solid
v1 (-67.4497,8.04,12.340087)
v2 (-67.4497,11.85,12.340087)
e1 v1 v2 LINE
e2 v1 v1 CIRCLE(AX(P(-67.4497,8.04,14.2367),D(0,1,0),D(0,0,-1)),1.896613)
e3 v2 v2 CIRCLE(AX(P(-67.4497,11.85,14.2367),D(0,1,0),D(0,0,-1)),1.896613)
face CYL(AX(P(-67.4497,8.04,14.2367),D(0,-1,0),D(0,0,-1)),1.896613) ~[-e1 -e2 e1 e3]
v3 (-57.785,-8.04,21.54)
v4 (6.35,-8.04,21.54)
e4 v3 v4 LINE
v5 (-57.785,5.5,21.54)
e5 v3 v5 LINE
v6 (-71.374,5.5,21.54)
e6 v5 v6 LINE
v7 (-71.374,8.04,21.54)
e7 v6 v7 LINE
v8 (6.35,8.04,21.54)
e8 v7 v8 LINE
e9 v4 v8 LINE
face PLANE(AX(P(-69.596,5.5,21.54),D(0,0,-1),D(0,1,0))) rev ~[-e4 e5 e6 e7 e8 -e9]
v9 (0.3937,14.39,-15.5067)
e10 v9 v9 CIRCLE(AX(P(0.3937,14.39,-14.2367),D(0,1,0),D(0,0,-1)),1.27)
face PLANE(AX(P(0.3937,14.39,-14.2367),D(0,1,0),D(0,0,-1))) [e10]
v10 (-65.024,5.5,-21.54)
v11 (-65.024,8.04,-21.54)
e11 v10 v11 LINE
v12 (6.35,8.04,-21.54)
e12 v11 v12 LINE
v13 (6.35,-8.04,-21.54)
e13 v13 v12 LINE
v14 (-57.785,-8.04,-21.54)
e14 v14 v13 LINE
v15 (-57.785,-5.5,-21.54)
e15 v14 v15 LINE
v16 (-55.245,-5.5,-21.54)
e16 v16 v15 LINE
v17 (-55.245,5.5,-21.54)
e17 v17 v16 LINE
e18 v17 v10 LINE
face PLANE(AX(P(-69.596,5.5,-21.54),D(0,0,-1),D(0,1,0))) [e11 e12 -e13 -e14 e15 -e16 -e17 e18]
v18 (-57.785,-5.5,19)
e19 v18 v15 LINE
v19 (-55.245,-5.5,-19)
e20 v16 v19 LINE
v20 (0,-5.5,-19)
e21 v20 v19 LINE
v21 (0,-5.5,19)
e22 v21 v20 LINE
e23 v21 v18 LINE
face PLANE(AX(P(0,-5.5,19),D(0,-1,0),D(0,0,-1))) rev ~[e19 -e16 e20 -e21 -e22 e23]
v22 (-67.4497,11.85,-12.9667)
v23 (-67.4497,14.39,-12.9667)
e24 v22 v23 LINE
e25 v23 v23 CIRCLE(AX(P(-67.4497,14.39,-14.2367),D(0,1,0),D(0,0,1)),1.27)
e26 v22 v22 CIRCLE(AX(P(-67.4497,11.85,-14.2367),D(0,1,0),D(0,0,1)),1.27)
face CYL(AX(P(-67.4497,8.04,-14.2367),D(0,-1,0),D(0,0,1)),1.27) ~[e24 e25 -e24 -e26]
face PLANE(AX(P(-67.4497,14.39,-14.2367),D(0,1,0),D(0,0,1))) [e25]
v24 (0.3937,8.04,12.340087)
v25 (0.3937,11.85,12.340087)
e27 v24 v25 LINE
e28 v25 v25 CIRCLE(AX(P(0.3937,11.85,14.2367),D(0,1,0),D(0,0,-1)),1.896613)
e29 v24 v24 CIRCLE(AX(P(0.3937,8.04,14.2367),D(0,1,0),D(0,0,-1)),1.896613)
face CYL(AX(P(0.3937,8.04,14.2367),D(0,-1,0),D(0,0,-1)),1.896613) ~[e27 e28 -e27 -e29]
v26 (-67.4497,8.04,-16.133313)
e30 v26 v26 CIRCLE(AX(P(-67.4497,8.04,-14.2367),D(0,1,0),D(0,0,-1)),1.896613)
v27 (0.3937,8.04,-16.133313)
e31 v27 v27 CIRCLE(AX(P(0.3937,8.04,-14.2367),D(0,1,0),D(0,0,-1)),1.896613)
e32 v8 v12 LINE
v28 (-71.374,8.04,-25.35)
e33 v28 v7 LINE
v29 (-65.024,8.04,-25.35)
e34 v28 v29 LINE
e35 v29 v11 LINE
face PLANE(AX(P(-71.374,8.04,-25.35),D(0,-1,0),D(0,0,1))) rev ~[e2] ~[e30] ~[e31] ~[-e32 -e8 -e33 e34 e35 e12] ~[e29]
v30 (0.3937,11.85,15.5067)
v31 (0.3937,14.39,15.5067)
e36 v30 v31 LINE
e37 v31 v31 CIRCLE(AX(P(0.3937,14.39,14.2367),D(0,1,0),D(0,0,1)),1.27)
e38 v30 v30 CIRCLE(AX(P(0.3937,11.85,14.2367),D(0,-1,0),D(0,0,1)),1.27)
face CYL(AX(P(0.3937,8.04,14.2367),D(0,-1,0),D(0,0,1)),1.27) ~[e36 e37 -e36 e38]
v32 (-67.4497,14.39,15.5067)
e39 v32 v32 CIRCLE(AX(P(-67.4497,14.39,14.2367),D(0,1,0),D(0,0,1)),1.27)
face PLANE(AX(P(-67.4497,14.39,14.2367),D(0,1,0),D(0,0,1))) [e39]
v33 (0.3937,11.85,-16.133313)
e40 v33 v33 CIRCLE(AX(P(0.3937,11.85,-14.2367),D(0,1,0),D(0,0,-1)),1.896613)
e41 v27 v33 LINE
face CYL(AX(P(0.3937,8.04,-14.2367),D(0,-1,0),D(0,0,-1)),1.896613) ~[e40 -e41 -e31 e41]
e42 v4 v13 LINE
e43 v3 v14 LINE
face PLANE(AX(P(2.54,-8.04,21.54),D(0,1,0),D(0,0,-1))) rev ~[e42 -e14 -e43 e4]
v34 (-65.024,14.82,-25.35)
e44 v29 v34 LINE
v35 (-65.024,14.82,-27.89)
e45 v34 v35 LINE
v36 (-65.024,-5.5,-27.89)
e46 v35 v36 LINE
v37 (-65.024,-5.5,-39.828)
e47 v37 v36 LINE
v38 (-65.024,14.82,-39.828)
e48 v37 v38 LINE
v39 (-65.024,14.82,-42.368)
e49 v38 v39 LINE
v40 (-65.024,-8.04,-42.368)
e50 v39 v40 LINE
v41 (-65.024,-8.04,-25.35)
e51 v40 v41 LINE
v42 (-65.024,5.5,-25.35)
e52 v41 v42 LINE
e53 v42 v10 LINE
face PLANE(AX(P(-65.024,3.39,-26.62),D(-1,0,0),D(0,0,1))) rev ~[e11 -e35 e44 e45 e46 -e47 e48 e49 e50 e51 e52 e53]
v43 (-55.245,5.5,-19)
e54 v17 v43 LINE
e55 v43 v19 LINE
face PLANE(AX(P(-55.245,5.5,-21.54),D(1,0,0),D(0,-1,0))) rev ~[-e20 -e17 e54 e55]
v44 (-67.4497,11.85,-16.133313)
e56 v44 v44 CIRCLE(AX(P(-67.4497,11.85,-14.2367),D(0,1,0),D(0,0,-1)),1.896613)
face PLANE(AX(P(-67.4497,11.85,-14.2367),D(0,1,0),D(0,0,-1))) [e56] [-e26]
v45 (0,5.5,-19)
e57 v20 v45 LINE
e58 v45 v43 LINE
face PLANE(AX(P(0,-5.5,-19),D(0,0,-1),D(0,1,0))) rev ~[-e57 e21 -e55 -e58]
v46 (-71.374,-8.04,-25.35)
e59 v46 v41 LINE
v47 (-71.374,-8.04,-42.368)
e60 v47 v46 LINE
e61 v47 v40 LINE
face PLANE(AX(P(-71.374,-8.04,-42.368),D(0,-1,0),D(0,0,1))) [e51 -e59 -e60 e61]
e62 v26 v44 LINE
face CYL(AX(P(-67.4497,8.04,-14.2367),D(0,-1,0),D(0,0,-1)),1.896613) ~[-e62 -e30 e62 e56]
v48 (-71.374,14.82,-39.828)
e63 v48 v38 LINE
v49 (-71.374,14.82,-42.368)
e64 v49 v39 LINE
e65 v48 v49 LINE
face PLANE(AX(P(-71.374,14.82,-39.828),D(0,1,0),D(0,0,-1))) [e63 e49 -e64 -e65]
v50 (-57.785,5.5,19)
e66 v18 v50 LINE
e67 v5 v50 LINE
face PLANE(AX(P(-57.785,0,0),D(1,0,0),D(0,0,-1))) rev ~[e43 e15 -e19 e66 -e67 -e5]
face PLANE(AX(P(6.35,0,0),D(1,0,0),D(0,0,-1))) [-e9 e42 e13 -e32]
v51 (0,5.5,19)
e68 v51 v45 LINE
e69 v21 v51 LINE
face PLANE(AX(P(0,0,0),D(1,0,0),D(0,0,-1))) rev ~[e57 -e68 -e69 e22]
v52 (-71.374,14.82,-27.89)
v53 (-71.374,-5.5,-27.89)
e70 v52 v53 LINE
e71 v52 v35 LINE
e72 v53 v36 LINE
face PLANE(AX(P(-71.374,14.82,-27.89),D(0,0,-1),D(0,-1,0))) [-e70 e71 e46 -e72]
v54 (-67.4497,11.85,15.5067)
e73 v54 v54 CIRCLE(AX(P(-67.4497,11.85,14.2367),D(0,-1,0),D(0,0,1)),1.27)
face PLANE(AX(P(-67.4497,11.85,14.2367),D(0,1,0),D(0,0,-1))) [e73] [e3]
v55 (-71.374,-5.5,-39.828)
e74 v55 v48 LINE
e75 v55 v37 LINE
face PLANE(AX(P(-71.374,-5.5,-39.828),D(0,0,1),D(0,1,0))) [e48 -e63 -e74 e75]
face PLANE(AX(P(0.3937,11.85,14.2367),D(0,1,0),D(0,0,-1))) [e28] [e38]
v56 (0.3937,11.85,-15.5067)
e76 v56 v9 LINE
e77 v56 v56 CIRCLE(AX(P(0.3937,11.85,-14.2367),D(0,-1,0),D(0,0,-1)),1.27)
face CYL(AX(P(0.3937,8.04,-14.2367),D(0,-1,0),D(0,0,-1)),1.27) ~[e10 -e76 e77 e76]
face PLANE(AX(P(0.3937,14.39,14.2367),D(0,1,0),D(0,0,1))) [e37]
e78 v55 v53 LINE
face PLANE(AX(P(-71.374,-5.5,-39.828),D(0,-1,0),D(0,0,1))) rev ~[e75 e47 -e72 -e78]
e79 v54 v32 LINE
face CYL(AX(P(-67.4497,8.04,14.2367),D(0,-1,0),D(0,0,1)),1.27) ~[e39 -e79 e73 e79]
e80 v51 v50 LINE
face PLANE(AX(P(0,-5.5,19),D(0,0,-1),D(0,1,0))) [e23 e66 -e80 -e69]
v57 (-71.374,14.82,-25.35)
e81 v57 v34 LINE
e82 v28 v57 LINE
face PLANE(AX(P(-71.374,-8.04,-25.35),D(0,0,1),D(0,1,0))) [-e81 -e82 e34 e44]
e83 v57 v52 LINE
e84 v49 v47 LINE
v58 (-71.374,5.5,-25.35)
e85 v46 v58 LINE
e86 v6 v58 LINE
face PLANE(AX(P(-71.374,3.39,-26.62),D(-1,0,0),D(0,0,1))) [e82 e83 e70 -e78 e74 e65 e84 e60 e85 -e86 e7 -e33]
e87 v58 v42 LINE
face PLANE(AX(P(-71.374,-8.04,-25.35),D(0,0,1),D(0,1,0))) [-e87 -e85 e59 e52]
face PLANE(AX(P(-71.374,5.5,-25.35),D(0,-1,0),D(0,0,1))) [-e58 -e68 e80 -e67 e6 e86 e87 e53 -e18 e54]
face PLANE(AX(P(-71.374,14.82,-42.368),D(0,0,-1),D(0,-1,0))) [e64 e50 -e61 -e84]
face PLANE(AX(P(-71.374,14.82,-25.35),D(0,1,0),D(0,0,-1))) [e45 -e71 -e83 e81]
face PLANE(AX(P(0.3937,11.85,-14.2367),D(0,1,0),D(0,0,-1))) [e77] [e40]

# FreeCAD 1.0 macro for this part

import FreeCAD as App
import Part
import Sketcher
from FreeCAD import Vector
Q = App.Units.Quantity


def add_polygon(sketch, points):
    """Adds a closed chain of lines whose ends are joined by coincident constraints."""
    first, n = sketch.GeometryCount, len(points)
    for a, b in zip(points, points[1:] + points[:1]):
        sketch.addGeometry(Part.LineSegment(App.Vector(*a, 0), App.Vector(*b, 0)), False)
    for i in range(n):
        sketch.addConstraint(Sketcher.Constraint("Coincident", first + i, 2, first + (i + 1) % n, 1))

doc = App.newDocument("Part")
params = doc.addObject("Spreadsheet::Sheet", "Params")
for row, (alias, value) in enumerate([
    ("pad1_length", "2.275 in"),
    ("pad2_length", "0.1 in"),
    ("sketch3_width", "0.1 in"),
    ("pocket1_length", "0.1 in"),
    ("sketch4_width", "0.465 in"),
    ("pad3_length", "0.1 in"),
    ("sketch5_diameter", "0.1 in"),
    ("pad4_length", "0.25 in"),
    ("sketch6_diameter", "0.1 in"),
    ("pad5_length", "0.15 in"),
    ("pad6_length", "0.15 in"),
    ("sketch8_width", "0.1 in"),
    ("pad7_length", "0.07 in"),
    ("sketch9_width", "0.1 in"),
    ("sketch9_height", "0.15 in"),
    ("pad8_length", "0.25 in"),
    ("sketch10_width", "0.8 in"),
    ("sketch10_width2", "0.9 in"),
    ("sketch10_height", "0.1 in"),
    ("sketch10_height2", "0.47 in"),
    ("pad9_length", "0.25 in"),
], start=1):
    params.set(f"A{row}", alias)
    params.set(f"B{row}", "=" + value)
    params.setAlias(f"B{row}", alias)

body = doc.addObject("PartDesign::Body", "Body")

sketch1 = body.newObject("Sketcher::SketchObject", "Sketch")
sketch1.AttachmentSupport = (doc.getObject("YZ_Plane"), [""])
sketch1.MapMode = "FlatFace"
add_polygon(sketch1, [(8.04, 21.54), (-8.04, 21.54), (-8.04, -21.54), (8.04, -21.54)])
add_polygon(sketch1, [(-5.5, -19), (-5.5, 19), (5.5, 19), (5.5, -19)])
sketch1.addConstraint(Sketcher.Constraint("Horizontal", 0))
sketch1.addConstraint(Sketcher.Constraint("Vertical", 1))
sketch1.addConstraint(Sketcher.Constraint("Horizontal", 2))
sketch1.addConstraint(Sketcher.Constraint("Vertical", 3))
sketch1.addConstraint(Sketcher.Constraint("Vertical", 4))
sketch1.addConstraint(Sketcher.Constraint("Horizontal", 5))
sketch1.addConstraint(Sketcher.Constraint("Vertical", 6))
sketch1.addConstraint(Sketcher.Constraint("Horizontal", 7))
sketch1.addConstraint(Sketcher.Constraint("Symmetric", 0, 2, 2, 2, -1, 1))
sketch1.addConstraint(Sketcher.Constraint("Symmetric", 4, 2, 6, 2, -1, 1))
sketch1.addConstraint(Sketcher.Constraint("DistanceX", 0, 2, 4, 2, Q("0.1 in")))
sketch1.addConstraint(Sketcher.Constraint("DistanceY", 4, 2, 0, 2, Q("0.1 in")))
sketch1.addConstraint(Sketcher.Constraint("DistanceX", 0, 2, 0, 1, Q("16.08 mm")))
sketch1.addConstraint(Sketcher.Constraint("DistanceY", 1, 2, 1, 1, Q("43.08 mm")))
pad1 = body.newObject("PartDesign::Pad", "Pad")
pad1.Profile = sketch1
pad1.setExpression("Length", "Params.pad1_length")
pad1.Reversed = True

sketch2 = body.newObject("Sketcher::SketchObject", "Sketch001")
sketch2.AttachmentSupport = (doc.getObject("YZ_Plane"), [""])
sketch2.MapMode = "FlatFace"
add_polygon(sketch2, [(8.04, 21.54), (-8.04, 21.54), (-8.04, -21.54), (8.04, -21.54)])
sketch2.addConstraint(Sketcher.Constraint("Horizontal", 0))
sketch2.addConstraint(Sketcher.Constraint("Vertical", 1))
sketch2.addConstraint(Sketcher.Constraint("Horizontal", 2))
sketch2.addConstraint(Sketcher.Constraint("Vertical", 3))
sketch2.addConstraint(Sketcher.Constraint("Symmetric", 0, 2, 2, 2, -1, 1))
sketch2.addConstraint(Sketcher.Constraint("DistanceX", 0, 2, 0, 1, Q("16.08 mm")))
sketch2.addConstraint(Sketcher.Constraint("DistanceY", 1, 2, 1, 1, Q("43.08 mm")))
pad2 = body.newObject("PartDesign::Pad", "Pad001")
pad2.Profile = sketch2
pad2.setExpression("Length", "Params.pad2_length")

sketch3 = body.newObject("Sketcher::SketchObject", "Sketch002")
sketch3.AttachmentSupport = (doc.getObject("XY_Plane"), [""])
sketch3.MapMode = "FlatFace"
sketch3.AttachmentOffset = App.Placement(Vector(0, 0, -21.54), App.Rotation())
add_polygon(sketch3, [(-55.245, -5.5), (-57.785, -5.5), (-57.785, 5.5), (-55.245, 5.5)])
sketch3.addConstraint(Sketcher.Constraint("Horizontal", 0))
sketch3.addConstraint(Sketcher.Constraint("Vertical", 1))
sketch3.addConstraint(Sketcher.Constraint("Horizontal", 2))
sketch3.addConstraint(Sketcher.Constraint("Vertical", 3))
sketch3.addConstraint(Sketcher.Constraint("DistanceX", 0, 2, 0, 1, Q("0.1 in")))
sketch3.addConstraint(Sketcher.Constraint("DistanceX", 0, 2, -1, 1, Q("2.275 in")))
sketch3.addConstraint(Sketcher.Constraint("DistanceY", 1, 1, 1, 2, Q("11 mm")))
sketch3.addConstraint(Sketcher.Constraint("DistanceY", 0, 2, -1, 1, Q("5.5 mm")))
sketch3.setExpression("Constraints[8]", "Params.sketch3_width")
pocket1 = body.newObject("PartDesign::Pocket", "Pocket")
pocket1.Profile = sketch3
pocket1.setExpression("Length", "Params.pocket1_length")
pocket1.Reversed = True

sketch4 = body.newObject("Sketcher::SketchObject", "Sketch003")
sketch4.AttachmentSupport = (doc.getObject("XZ_Plane"), [""])
sketch4.MapMode = "FlatFace"
sketch4.AttachmentOffset = App.Placement(Vector(0, 0, -8.04), App.Rotation())
add_polygon(sketch4, [(-69.596, -21.54), (-69.596, 21.54), (-57.785, 21.54), (-57.785, -21.54)])
sketch4.addConstraint(Sketcher.Constraint("Vertical", 0))
sketch4.addConstraint(Sketcher.Constraint("Horizontal", 1))
sketch4.addConstraint(Sketcher.Constraint("Vertical", 2))
sketch4.addConstraint(Sketcher.Constraint("Horizontal", 3))
sketch4.addConstraint(Sketcher.Constraint("DistanceX", 1, 1, 1, 2, Q("0.465 in")))
sketch4.addConstraint(Sketcher.Constraint("DistanceX", 0, 2, -1, 1, Q("2.74 in")))
sketch4.addConstraint(Sketcher.Constraint("DistanceY", 0, 1, 0, 2, Q("43.08 mm")))
sketch4.addConstraint(Sketcher.Constraint("DistanceY", -1, 1, 0, 2, Q("21.54 mm")))
sketch4.setExpression("Constraints[8]", "Params.sketch4_width")
pad3 = body.newObject("PartDesign::Pad", "Pad002")
pad3.Profile = sketch4
pad3.setExpression("Length", "Params.pad3_length")

sketch5 = body.newObject("Sketcher::SketchObject", "Sketch004")
sketch5.AttachmentSupport = (doc.getObject("XZ_Plane"), [""])
sketch5.MapMode = "FlatFace"
sketch5.AttachmentOffset = App.Placement(Vector(0, 0, -8.04), App.Rotation())
sketch5.addGeometry(Part.Circle(Vector(-67.4497, -14.2367, 0), Vector(0, 0, 1), 1.27), False)
sketch5.addGeometry(Part.Circle(Vector(-67.4497, 14.2367, 0), Vector(0, 0, 1), 1.27), False)
sketch5.addGeometry(Part.Circle(Vector(0.3937, 14.2367, 0), Vector(0, 0, 1), 1.27), False)
sketch5.addGeometry(Part.Circle(Vector(0.3937, -14.2367, 0), Vector(0, 0, 1), 1.27), False)
sketch5.addConstraint(Sketcher.Constraint("Equal", 0, 1))
sketch5.addConstraint(Sketcher.Constraint("Equal", 1, 2))
sketch5.addConstraint(Sketcher.Constraint("Equal", 2, 3))
sketch5.addConstraint(Sketcher.Constraint("Symmetric", 0, 3, 1, 3, -1))
sketch5.addConstraint(Sketcher.Constraint("Symmetric", 2, 3, 3, 3, -1))
sketch5.addConstraint(Sketcher.Constraint("Horizontal", 1, 3, 2, 3))
sketch5.addConstraint(Sketcher.Constraint("Diameter", 0, Q("0.1 in")))
sketch5.addConstraint(Sketcher.Constraint("DistanceY", 0, 3, 1, 3, Q("1.121 in")))
sketch5.addConstraint(Sketcher.Constraint("DistanceX", 1, 3, 2, 3, Q("2.671 in")))
sketch5.addConstraint(Sketcher.Constraint("DistanceX", 0, 3, -1, 1, Q("2.6555 in")))
sketch5.setExpression("Constraints[6]", "Params.sketch5_diameter")
pad4 = body.newObject("PartDesign::Pad", "Pad003")
pad4.Profile = sketch5
pad4.setExpression("Length", "Params.pad4_length")
pad4.Reversed = True

sketch6 = body.newObject("Sketcher::SketchObject", "Sketch005")
sketch6.AttachmentSupport = (doc.getObject("XZ_Plane"), [""])
sketch6.MapMode = "FlatFace"
sketch6.AttachmentOffset = App.Placement(Vector(0, 0, -8.04), App.Rotation())
sketch6.addGeometry(Part.Circle(Vector(-67.4497, -14.2367, 0), Vector(0, 0, 1), 1.896613), False)
sketch6.addGeometry(Part.Circle(Vector(-67.4497, -14.2367, 0), Vector(0, 0, 1), 1.27), False)
sketch6.addGeometry(Part.Circle(Vector(-67.4497, 14.2367, 0), Vector(0, 0, 1), 1.896613), False)
sketch6.addGeometry(Part.Circle(Vector(0.3937, 14.2367, 0), Vector(0, 0, 1), 1.896613), False)
sketch6.addGeometry(Part.Circle(Vector(0.3937, -14.2367, 0), Vector(0, 0, 1), 1.896613), False)
sketch6.addConstraint(Sketcher.Constraint("Coincident", 1, 3, 0, 3))
sketch6.addConstraint(Sketcher.Constraint("Equal", 0, 2))
sketch6.addConstraint(Sketcher.Constraint("Equal", 2, 3))
sketch6.addConstraint(Sketcher.Constraint("Equal", 3, 4))
sketch6.addConstraint(Sketcher.Constraint("Symmetric", 0, 3, 2, 3, -1))
sketch6.addConstraint(Sketcher.Constraint("Symmetric", 3, 3, 4, 3, -1))
sketch6.addConstraint(Sketcher.Constraint("Horizontal", 2, 3, 3, 3))
sketch6.addConstraint(Sketcher.Constraint("Diameter", 1, Q("0.1 in")))
sketch6.addConstraint(Sketcher.Constraint("DistanceY", 0, 3, 2, 3, Q("1.121 in")))
sketch6.addConstraint(Sketcher.Constraint("DistanceX", 2, 3, 3, 3, Q("2.671 in")))
sketch6.addConstraint(Sketcher.Constraint("Diameter", 0, Q("3.793226 mm")))
sketch6.addConstraint(Sketcher.Constraint("DistanceX", 0, 3, -1, 1, Q("2.6555 in")))
sketch6.setExpression("Constraints[7]", "Params.sketch6_diameter")
pad5 = body.newObject("PartDesign::Pad", "Pad004")
pad5.Profile = sketch6
pad5.setExpression("Length", "Params.pad5_length")
pad5.Reversed = True

sketch7 = body.newObject("Sketcher::SketchObject", "Sketch006")
sketch7.AttachmentSupport = (doc.getObject("YZ_Plane"), [""])
sketch7.MapMode = "FlatFace"
sketch7.AttachmentOffset = App.Placement(Vector(0, 0, 0.1 * 25.4), App.Rotation())
add_polygon(sketch7, [(8.04, 21.54), (-8.04, 21.54), (-8.04, -21.54), (8.04, -21.54)])
sketch7.addConstraint(Sketcher.Constraint("Horizontal", 0))
sketch7.addConstraint(Sketcher.Constraint("Vertical", 1))
sketch7.addConstraint(Sketcher.Constraint("Horizontal", 2))
sketch7.addConstraint(Sketcher.Constraint("Vertical", 3))
sketch7.addConstraint(Sketcher.Constraint("Symmetric", 0, 2, 2, 2, -1, 1))
sketch7.addConstraint(Sketcher.Constraint("DistanceX", 0, 2, 0, 1, Q("16.08 mm")))
sketch7.addConstraint(Sketcher.Constraint("DistanceY", 1, 2, 1, 1, Q("43.08 mm")))
pad6 = body.newObject("PartDesign::Pad", "Pad005")
pad6.Profile = sketch7
pad6.setExpression("Length", "Params.pad6_length")

sketch8 = body.newObject("Sketcher::SketchObject", "Sketch007")
sketch8.AttachmentSupport = (doc.getObject("YZ_Plane"), [""])
sketch8.MapMode = "FlatFace"
sketch8.AttachmentOffset = App.Placement(Vector(0, 0, -2.74 * 25.4), App.Rotation())
add_polygon(sketch8, [(8.04, -21.54), (5.5, -21.54), (5.5, 21.54), (8.04, 21.54)])
sketch8.addConstraint(Sketcher.Constraint("Horizontal", 0))
sketch8.addConstraint(Sketcher.Constraint("Vertical", 1))
sketch8.addConstraint(Sketcher.Constraint("Horizontal", 2))
sketch8.addConstraint(Sketcher.Constraint("Vertical", 3))
sketch8.addConstraint(Sketcher.Constraint("DistanceX", 0, 2, 0, 1, Q("0.1 in")))
sketch8.addConstraint(Sketcher.Constraint("DistanceY", 1, 1, 1, 2, Q("43.08 mm")))
sketch8.addConstraint(Sketcher.Constraint("DistanceX", -1, 1, 0, 2, Q("5.5 mm")))
sketch8.addConstraint(Sketcher.Constraint("DistanceY", 0, 2, -1, 1, Q("21.54 mm")))
sketch8.setExpression("Constraints[8]", "Params.sketch8_width")
pad7 = body.newObject("PartDesign::Pad", "Pad006")
pad7.Profile = sketch8
pad7.setExpression("Length", "Params.pad7_length")
pad7.Reversed = True

sketch9 = body.newObject("Sketcher::SketchObject", "Sketch008")
sketch9.AttachmentSupport = (doc.getObject("YZ_Plane"), [""])
sketch9.MapMode = "FlatFace"
sketch9.AttachmentOffset = App.Placement(Vector(0, 0, -2.81 * 25.4), App.Rotation())
add_polygon(sketch9, [(8.04, -25.35), (5.5, -25.35), (5.5, -21.54), (8.04, -21.54)])
sketch9.addConstraint(Sketcher.Constraint("Horizontal", 0))
sketch9.addConstraint(Sketcher.Constraint("Vertical", 1))
sketch9.addConstraint(Sketcher.Constraint("Horizontal", 2))
sketch9.addConstraint(Sketcher.Constraint("Vertical", 3))
sketch9.addConstraint(Sketcher.Constraint("DistanceX", 0, 2, 0, 1, Q("0.1 in")))
sketch9.addConstraint(Sketcher.Constraint("DistanceY", 1, 1, 1, 2, Q("0.15 in")))
sketch9.addConstraint(Sketcher.Constraint("DistanceX", -1, 1, 0, 2, Q("5.5 mm")))
sketch9.addConstraint(Sketcher.Constraint("DistanceY", 0, 2, -1, 1, Q("25.35 mm")))
sketch9.setExpression("Constraints[8]", "Params.sketch9_width")
sketch9.setExpression("Constraints[9]", "Params.sketch9_height")
pad8 = body.newObject("PartDesign::Pad", "Pad007")
pad8.Profile = sketch9
pad8.setExpression("Length", "Params.pad8_length")

sketch10 = body.newObject("Sketcher::SketchObject", "Sketch009")
sketch10.AttachmentSupport = (doc.getObject("YZ_Plane"), [""])
sketch10.MapMode = "FlatFace"
sketch10.AttachmentOffset = App.Placement(Vector(0, 0, -2.81 * 25.4), App.Rotation())
add_polygon(sketch10, [(14.82, -25.35), (14.82, -27.89), (-5.5, -27.89), (-5.5, -39.828), (14.82, -39.828), (14.82, -42.368), (-8.04, -42.368), (-8.04, -25.35)])
sketch10.addConstraint(Sketcher.Constraint("Vertical", 0))
sketch10.addConstraint(Sketcher.Constraint("Horizontal", 1))
sketch10.addConstraint(Sketcher.Constraint("Vertical", 2))
sketch10.addConstraint(Sketcher.Constraint("Horizontal", 3))
sketch10.addConstraint(Sketcher.Constraint("Vertical", 4))
sketch10.addConstraint(Sketcher.Constraint("Horizontal", 5))
sketch10.addConstraint(Sketcher.Constraint("Vertical", 6))
sketch10.addConstraint(Sketcher.Constraint("Horizontal", 7))
sketch10.addConstraint(Sketcher.Constraint("Vertical", 0, 2, 3, 2))
sketch10.addConstraint(Sketcher.Constraint("Equal", 0, 4))
sketch10.addConstraint(Sketcher.Constraint("DistanceX", 1, 2, 1, 1, Q("0.8 in")))
sketch10.addConstraint(Sketcher.Constraint("DistanceX", 5, 2, 5, 1, Q("0.9 in")))
sketch10.addConstraint(Sketcher.Constraint("DistanceY", 0, 2, 0, 1, Q("0.1 in")))
sketch10.addConstraint(Sketcher.Constraint("DistanceY", 2, 2, 2, 1, Q("0.47 in")))
sketch10.addConstraint(Sketcher.Constraint("DistanceX", -1, 1, 0, 2, Q("14.82 mm")))
sketch10.addConstraint(Sketcher.Constraint("DistanceY", 0, 2, -1, 1, Q("27.89 mm")))
sketch10.setExpression("Constraints[18]", "Params.sketch10_width")
sketch10.setExpression("Constraints[19]", "Params.sketch10_width2")
sketch10.setExpression("Constraints[20]", "Params.sketch10_height")
sketch10.setExpression("Constraints[21]", "Params.sketch10_height2")
pad9 = body.newObject("PartDesign::Pad", "Pad008")
pad9.Profile = sketch10
pad9.setExpression("Length", "Params.pad9_length")

doc.recompute()
